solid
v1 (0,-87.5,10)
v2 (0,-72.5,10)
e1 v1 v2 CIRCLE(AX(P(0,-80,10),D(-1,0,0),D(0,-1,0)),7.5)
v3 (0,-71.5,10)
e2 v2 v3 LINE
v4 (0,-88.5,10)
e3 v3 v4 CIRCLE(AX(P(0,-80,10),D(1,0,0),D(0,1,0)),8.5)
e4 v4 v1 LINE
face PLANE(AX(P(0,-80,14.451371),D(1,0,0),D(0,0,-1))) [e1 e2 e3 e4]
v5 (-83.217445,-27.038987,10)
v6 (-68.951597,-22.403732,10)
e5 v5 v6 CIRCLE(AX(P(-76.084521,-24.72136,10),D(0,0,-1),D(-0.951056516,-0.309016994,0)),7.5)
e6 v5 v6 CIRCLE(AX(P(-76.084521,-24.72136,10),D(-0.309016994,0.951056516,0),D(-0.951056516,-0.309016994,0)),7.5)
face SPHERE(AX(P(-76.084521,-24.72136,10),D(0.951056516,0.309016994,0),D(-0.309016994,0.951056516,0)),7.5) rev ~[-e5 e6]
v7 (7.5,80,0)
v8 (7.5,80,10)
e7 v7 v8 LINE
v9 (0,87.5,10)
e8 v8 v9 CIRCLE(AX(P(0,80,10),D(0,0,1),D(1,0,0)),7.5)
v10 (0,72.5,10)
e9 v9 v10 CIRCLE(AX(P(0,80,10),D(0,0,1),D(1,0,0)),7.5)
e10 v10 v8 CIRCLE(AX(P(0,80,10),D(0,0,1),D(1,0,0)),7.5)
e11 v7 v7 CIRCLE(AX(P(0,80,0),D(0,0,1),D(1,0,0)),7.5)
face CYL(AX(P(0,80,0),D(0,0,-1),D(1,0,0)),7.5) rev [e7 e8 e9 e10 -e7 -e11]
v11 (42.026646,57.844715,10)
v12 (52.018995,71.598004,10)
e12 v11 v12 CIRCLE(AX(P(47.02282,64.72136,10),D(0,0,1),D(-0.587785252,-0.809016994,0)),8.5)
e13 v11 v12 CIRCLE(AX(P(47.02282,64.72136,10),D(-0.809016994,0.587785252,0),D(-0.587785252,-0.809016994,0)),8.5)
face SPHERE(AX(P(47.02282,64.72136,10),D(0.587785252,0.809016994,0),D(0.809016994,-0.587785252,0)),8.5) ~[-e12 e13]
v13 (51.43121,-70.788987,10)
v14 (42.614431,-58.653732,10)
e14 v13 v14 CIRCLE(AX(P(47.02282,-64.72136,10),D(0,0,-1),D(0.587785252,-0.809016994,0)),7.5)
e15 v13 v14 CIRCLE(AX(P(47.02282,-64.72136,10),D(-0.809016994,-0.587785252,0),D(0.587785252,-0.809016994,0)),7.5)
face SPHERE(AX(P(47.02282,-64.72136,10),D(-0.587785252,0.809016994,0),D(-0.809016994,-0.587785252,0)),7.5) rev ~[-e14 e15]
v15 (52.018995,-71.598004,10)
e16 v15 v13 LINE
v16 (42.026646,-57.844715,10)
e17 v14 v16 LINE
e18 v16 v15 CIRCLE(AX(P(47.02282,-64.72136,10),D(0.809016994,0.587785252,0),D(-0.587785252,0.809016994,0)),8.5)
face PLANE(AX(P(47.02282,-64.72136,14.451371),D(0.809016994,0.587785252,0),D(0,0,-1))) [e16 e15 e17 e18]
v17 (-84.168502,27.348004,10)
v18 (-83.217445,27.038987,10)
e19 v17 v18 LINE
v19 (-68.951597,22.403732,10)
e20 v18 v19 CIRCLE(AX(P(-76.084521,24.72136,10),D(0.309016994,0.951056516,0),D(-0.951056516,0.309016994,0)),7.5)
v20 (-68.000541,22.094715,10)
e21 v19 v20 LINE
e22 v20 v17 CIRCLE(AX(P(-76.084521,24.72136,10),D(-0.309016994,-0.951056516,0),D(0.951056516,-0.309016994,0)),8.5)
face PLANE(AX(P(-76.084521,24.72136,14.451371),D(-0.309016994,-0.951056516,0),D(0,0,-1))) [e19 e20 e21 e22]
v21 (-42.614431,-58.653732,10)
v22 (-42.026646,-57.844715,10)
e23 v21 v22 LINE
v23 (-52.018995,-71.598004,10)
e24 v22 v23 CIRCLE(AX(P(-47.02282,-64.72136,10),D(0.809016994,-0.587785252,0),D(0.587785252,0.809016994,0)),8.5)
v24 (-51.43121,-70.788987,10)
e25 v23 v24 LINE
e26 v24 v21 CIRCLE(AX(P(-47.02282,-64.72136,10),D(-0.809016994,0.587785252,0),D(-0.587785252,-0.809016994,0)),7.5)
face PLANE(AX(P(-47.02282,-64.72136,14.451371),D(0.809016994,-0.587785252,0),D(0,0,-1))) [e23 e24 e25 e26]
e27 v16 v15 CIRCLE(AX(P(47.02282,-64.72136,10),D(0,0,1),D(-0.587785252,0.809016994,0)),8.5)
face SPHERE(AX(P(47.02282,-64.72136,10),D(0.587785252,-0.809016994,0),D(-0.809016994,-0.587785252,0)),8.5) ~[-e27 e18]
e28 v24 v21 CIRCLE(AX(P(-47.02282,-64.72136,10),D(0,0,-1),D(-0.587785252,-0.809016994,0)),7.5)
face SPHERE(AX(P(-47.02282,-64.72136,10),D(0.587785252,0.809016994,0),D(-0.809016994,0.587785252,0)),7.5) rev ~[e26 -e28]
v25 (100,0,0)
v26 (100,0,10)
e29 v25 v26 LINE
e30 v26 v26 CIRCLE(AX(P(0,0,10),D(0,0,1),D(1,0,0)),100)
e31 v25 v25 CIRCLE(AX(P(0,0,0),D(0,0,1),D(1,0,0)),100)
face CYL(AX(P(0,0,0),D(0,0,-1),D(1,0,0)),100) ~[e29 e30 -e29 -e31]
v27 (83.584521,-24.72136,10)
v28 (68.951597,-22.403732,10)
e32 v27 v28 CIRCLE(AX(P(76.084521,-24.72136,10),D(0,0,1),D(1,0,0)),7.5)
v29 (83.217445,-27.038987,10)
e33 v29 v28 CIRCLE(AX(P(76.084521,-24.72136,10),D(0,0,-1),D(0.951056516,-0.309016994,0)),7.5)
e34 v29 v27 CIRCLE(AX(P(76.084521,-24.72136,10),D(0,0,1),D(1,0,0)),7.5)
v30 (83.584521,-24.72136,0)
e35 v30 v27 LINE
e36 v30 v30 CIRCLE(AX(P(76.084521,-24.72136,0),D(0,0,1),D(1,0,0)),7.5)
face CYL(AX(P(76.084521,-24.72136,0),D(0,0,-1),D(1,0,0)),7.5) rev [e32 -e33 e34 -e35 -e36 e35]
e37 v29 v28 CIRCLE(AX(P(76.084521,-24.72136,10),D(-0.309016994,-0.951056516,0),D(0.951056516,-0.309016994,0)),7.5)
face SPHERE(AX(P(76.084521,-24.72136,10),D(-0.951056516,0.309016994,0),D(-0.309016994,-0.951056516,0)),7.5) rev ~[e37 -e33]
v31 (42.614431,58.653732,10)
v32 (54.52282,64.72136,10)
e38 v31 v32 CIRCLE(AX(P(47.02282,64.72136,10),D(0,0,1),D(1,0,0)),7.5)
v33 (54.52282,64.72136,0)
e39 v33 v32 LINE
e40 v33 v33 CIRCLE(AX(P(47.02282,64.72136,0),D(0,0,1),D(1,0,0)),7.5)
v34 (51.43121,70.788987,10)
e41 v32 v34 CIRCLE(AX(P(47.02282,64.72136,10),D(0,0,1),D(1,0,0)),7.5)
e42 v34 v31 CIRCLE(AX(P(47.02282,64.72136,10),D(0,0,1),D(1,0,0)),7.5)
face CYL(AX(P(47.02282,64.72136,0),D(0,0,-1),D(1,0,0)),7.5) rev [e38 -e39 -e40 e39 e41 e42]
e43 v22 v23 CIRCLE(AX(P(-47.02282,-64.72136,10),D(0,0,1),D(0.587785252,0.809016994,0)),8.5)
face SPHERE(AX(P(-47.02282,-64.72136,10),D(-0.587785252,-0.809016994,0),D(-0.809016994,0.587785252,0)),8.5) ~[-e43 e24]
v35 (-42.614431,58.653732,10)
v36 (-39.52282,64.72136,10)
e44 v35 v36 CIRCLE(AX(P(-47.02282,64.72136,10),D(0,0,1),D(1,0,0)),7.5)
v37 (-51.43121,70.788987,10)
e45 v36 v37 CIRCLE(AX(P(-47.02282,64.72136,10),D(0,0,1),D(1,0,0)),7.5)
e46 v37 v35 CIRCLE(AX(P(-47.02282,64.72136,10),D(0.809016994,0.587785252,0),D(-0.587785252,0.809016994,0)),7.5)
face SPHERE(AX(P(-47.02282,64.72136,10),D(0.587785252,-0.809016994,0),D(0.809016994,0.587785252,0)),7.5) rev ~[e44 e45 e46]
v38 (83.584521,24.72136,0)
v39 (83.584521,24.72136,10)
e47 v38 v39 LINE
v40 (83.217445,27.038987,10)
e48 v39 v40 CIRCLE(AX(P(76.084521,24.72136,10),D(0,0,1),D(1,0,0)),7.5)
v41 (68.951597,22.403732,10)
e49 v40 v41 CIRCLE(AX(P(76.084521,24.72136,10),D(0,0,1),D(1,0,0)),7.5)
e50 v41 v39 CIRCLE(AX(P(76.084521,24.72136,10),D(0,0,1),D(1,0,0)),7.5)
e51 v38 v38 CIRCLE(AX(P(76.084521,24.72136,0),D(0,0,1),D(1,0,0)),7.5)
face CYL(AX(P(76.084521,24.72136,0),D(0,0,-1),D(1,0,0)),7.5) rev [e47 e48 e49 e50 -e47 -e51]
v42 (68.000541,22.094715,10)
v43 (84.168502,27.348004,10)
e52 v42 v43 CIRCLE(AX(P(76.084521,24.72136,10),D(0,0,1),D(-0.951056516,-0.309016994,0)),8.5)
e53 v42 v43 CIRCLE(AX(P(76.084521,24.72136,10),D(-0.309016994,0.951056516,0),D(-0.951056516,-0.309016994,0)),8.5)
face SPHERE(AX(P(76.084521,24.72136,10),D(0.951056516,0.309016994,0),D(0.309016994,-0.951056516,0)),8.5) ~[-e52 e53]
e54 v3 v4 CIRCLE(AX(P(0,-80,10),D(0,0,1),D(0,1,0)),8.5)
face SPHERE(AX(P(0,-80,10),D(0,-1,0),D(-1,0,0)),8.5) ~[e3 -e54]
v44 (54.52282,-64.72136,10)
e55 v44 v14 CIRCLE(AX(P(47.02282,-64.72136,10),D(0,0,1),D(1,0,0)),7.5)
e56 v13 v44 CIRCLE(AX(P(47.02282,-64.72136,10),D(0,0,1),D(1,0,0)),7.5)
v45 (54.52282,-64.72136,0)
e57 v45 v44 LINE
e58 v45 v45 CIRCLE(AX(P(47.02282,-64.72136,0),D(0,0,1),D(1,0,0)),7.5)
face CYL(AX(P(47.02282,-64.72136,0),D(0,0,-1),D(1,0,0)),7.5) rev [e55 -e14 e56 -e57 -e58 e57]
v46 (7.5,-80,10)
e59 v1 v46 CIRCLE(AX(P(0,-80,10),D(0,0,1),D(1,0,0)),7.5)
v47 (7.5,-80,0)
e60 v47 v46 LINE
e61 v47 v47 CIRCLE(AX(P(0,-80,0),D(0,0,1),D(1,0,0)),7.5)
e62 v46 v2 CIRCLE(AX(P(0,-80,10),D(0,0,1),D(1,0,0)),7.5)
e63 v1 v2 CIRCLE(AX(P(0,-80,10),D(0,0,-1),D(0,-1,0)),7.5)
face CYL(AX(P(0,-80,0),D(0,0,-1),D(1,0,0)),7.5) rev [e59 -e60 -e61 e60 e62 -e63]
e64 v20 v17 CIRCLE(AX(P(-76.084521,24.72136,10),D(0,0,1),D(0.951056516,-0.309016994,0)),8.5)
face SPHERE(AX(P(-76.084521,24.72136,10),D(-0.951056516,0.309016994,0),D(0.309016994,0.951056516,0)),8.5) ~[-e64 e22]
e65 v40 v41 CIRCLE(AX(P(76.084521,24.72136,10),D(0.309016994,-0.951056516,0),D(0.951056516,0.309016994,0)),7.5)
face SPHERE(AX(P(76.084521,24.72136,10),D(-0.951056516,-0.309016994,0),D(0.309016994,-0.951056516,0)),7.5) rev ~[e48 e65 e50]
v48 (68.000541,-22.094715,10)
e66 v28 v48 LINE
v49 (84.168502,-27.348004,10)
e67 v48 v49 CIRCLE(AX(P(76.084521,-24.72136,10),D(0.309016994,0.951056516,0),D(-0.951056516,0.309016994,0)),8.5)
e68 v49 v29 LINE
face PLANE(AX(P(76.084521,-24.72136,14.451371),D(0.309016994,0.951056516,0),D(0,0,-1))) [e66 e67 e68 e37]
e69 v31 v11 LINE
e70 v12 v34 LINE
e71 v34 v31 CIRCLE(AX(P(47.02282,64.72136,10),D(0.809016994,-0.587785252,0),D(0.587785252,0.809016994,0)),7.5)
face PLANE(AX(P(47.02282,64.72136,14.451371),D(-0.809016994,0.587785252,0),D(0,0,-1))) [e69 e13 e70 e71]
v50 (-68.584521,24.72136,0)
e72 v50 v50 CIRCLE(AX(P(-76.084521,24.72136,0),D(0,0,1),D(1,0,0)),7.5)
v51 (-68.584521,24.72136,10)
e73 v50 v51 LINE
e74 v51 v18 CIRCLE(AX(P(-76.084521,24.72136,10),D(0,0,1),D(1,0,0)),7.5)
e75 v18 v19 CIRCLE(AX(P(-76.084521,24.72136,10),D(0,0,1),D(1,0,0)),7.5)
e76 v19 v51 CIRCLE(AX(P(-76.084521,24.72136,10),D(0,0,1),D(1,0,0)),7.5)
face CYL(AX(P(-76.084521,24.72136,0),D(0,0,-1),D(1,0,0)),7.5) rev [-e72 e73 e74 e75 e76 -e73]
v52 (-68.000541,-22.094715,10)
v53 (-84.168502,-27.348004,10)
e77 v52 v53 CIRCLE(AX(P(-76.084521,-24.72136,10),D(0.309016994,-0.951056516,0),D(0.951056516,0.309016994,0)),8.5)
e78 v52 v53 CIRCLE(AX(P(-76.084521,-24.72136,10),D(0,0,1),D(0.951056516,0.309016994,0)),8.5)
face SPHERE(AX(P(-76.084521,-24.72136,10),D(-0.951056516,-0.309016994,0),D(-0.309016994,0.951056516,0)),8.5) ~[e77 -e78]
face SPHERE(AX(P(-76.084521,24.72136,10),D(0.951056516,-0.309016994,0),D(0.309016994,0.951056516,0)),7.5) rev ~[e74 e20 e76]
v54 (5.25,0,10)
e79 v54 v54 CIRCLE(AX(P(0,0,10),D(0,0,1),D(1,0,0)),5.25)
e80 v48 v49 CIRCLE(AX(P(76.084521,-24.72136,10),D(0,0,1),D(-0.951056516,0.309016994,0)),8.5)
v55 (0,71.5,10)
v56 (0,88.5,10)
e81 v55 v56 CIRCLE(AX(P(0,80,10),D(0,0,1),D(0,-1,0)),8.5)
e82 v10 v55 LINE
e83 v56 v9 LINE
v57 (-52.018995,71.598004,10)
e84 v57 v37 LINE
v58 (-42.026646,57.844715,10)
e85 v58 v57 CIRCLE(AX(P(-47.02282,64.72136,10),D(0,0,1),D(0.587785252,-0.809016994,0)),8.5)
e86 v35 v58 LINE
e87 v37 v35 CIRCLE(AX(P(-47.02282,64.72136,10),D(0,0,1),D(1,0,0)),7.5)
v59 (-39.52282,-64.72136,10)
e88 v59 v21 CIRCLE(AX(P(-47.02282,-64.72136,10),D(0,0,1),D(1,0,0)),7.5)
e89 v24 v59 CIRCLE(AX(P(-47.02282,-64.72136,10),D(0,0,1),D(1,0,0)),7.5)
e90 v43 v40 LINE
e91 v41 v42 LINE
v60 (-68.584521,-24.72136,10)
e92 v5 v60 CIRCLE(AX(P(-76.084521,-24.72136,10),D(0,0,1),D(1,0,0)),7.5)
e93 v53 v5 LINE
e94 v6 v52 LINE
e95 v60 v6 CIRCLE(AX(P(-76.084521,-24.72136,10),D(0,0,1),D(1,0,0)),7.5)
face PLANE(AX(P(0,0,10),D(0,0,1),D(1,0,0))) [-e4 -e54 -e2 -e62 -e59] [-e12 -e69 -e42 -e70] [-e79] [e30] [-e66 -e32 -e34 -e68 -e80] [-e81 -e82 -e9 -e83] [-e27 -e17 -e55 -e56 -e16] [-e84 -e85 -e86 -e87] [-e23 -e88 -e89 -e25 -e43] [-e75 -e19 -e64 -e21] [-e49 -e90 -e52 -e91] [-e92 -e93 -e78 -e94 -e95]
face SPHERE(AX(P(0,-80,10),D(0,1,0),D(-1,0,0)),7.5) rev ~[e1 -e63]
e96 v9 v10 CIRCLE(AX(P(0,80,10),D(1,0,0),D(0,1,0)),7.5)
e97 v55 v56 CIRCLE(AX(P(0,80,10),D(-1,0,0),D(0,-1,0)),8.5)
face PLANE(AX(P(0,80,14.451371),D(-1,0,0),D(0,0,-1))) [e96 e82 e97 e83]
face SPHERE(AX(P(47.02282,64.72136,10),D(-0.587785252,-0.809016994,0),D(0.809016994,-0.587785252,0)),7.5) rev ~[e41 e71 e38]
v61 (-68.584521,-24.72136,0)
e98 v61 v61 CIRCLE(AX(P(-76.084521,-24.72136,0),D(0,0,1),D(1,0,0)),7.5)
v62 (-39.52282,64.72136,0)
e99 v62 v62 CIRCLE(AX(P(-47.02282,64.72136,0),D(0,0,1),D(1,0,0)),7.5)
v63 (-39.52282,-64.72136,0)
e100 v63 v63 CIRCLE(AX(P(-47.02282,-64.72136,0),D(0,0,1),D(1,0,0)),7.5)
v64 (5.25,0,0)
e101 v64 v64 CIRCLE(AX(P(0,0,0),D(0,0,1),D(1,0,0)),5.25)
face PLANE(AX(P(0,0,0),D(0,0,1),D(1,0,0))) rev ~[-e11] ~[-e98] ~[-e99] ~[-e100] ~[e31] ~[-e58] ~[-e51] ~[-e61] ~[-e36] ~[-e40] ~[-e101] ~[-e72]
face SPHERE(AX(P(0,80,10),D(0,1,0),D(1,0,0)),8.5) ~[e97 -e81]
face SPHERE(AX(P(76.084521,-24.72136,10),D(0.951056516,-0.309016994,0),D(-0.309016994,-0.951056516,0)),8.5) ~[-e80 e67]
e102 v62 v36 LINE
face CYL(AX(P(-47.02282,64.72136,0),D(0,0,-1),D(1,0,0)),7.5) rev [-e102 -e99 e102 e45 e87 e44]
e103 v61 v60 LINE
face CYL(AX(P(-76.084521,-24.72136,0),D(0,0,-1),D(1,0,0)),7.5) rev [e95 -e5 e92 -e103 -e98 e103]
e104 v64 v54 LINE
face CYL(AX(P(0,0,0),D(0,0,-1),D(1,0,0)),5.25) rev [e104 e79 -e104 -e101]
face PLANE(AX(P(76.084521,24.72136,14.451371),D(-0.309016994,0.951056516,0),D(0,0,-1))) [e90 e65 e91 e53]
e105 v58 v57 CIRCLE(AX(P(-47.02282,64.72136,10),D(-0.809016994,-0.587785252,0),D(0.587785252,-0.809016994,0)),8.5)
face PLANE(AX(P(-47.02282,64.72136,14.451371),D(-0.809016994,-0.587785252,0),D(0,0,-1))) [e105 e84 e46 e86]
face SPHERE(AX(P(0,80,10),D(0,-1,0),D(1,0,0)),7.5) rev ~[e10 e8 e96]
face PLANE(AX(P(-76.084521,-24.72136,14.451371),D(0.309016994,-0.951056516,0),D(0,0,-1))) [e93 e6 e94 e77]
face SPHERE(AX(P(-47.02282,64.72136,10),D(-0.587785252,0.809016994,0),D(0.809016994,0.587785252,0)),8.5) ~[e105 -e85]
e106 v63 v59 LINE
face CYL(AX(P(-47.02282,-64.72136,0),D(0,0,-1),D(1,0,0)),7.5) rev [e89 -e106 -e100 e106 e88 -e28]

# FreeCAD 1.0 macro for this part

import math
import FreeCAD as App
import Part
import Sketcher

V = App.Vector
Q = App.Units.Quantity

doc = App.newDocument("Part")
params = doc.addObject("Spreadsheet::Sheet", "Params")
for row, (alias, value) in enumerate([
    ("sketch1_diameter", "200 mm"),
    ("sketch1_diameter2", "15 mm"),
    ("sketch1_diameter3", "10.5 mm"),
    ("pad1_length", "10 mm"),
    ("sketch2_radius", "7.5 mm"),
    ("sketch2_radius2", "8.5 mm"),
    ("revolution_angle", "90 deg"),
], start=1):
    params.set(f"A{row}", alias)
    params.set(f"B{row}", "=" + value)
    params.setAlias(f"B{row}", alias)

body = doc.addObject("PartDesign::Body", "Body")

# Sketch on XY plane
sketch1 = doc.addObject("Sketcher::SketchObject", "Sketch")
body.addObject(sketch1)
sketch1.AttachmentSupport = (doc.XY_Plane, [""])
sketch1.MapMode = "FlatFace"
sketch1.addGeometry([
    Part.Circle(V(0, 0, 0), V(0, 0, 1), 100),  # 0
    Part.Circle(V(-47, -65, 0), V(0, 0, 1), 8),  # 1
    Part.Circle(V(-76, -25, 0), V(0, 0, 1), 8),  # 2
    Part.Circle(V(0, -80, 0), V(0, 0, 1), 8),  # 3
    Part.Circle(V(47, -65, 0), V(0, 0, 1), 8),  # 4
    Part.Circle(V(76, -25, 0), V(0, 0, 1), 8),  # 5
    Part.Circle(V(-76, 25, 0), V(0, 0, 1), 8),  # 6
    Part.Circle(V(-47, 65, 0), V(0, 0, 1), 8),  # 7
    Part.Circle(V(0, 0, 0), V(0, 0, 1), 5),  # 8
    Part.Circle(V(76, 25, 0), V(0, 0, 1), 8),  # 9
    Part.Circle(V(0, 80, 0), V(0, 0, 1), 8),  # 10
    Part.Circle(V(47, 65, 0), V(0, 0, 1), 8),  # 11
], False)
sketch1.addConstraint([
    Sketcher.Constraint("Coincident", 0, 3, -1, 1),
    Sketcher.Constraint("Coincident", 8, 3, -1, 1),
    Sketcher.Constraint("Equal", 1, 2),
    Sketcher.Constraint("Equal", 2, 3),
    Sketcher.Constraint("Equal", 3, 4),
    Sketcher.Constraint("Equal", 4, 5),
    Sketcher.Constraint("Equal", 5, 6),
    Sketcher.Constraint("Equal", 6, 7),
    Sketcher.Constraint("Equal", 7, 9),
    Sketcher.Constraint("Equal", 9, 10),
    Sketcher.Constraint("Equal", 10, 11),
    Sketcher.Constraint("Symmetric", 5, 3, 6, 3, -1, 1),
    Sketcher.Constraint("Symmetric", 4, 3, 7, 3, -1, 1),
    Sketcher.Constraint("Symmetric", 2, 3, 9, 3, -1, 1),
    Sketcher.Constraint("Symmetric", 3, 3, 10, 3, -1, 1),
    Sketcher.Constraint("Symmetric", 1, 3, 11, 3, -1, 1),
    Sketcher.Constraint("Symmetric", 1, 3, 4, 3, -2),
    Sketcher.Constraint("Symmetric", 2, 3, 5, 3, -2),
    Sketcher.Constraint("PointOnObject", 3, 3, -2),
    Sketcher.Constraint("Diameter", 0, Q("200 mm")),
    Sketcher.Constraint("Diameter", 1, Q("15 mm")),
    Sketcher.Constraint("Diameter", 8, Q("10.5 mm")),
    Sketcher.Constraint("DistanceY", 3, 3, -1, 1, Q("80 mm")),
    Sketcher.Constraint("DistanceY", 1, 3, 2, 3, Q("40 mm")),
    Sketcher.Constraint("DistanceX", 2, 3, 1, 3, Q("29.061701 mm")),
    Sketcher.Constraint("DistanceX", 1, 3, -1, 1, Q("47.02282 mm")),
    Sketcher.Constraint("DistanceY", 1, 3, -1, 1, Q("64.72136 mm")),
])
sketch1.setExpression("Constraints[19]", "Params.sketch1_diameter")
sketch1.setExpression("Constraints[20]", "Params.sketch1_diameter2")
sketch1.setExpression("Constraints[21]", "Params.sketch1_diameter3")
pad1 = doc.addObject("PartDesign::Pad", "Pad")
body.addObject(pad1)
pad1.Profile = sketch1
pad1.setExpression("Length", "Params.pad1_length")

# Sketch on XY plane
sketch2 = doc.addObject("Sketcher::SketchObject", "Sketch001")
body.addObject(sketch2)
sketch2.AttachmentSupport = (doc.XY_Plane, [""])
sketch2.MapMode = "FlatFace"
sketch2.AttachmentOffset = App.Placement(V(0, 0, 10), App.Rotation())
sketch2.addGeometry([
    Part.LineSegment(V(0, -88.5, 0), V(0, -87.5, 0)),
    Part.ArcOfCircle(Part.Circle(V(0, -80, 0), V(0, 0, 1), 7.5), math.radians(90), math.radians(270)),
    Part.LineSegment(V(0, -72.5, 0), V(0, -71.5, 0)),
    Part.ArcOfCircle(Part.Circle(V(0, -80, 0), V(0, 0, 1), 8.5), math.radians(90), math.radians(270)),
], False)
sketch2.addConstraint([
    Sketcher.Constraint("Coincident", 0, 2, 1, 2),
    Sketcher.Constraint("Coincident", 1, 1, 2, 1),
    Sketcher.Constraint("Coincident", 2, 2, 3, 1),
    Sketcher.Constraint("Coincident", 3, 2, 0, 1),
    Sketcher.Constraint("Vertical", 0),
    Sketcher.Constraint("Vertical", 2),
    Sketcher.Constraint("Coincident", 3, 3, 1, 3),
    Sketcher.Constraint("PointOnObject", 1, 3, -2),
    Sketcher.Constraint("PointOnObject", 0, 2, -2),
    Sketcher.Constraint("PointOnObject", 1, 1, -2),
    Sketcher.Constraint("Radius", 1, Q("7.5 mm")),
    Sketcher.Constraint("Radius", 3, Q("8.5 mm")),
    Sketcher.Constraint("DistanceY", 1, 3, -1, 1, Q("80 mm")),
])
sketch2.setExpression("Constraints[10]", "Params.sketch2_radius")
sketch2.setExpression("Constraints[11]", "Params.sketch2_radius2")
revolution = doc.addObject("PartDesign::Revolution", "Revolution")
body.addObject(revolution)
revolution.Profile = sketch2
revolution.ReferenceAxis = (sketch2, ["V_Axis"])
revolution.setExpression("Angle", "Params.revolution_angle")
doc.recompute()

polarpattern = doc.addObject("PartDesign::PolarPattern", "PolarPattern")
body.addObject(polarpattern)
polarpattern.Originals = [revolution]
polarpattern.Axis = (doc.Z_Axis, [""])
polarpattern.Angle = 360
polarpattern.Occurrences = 10
body.Tip = polarpattern

doc.recompute()
